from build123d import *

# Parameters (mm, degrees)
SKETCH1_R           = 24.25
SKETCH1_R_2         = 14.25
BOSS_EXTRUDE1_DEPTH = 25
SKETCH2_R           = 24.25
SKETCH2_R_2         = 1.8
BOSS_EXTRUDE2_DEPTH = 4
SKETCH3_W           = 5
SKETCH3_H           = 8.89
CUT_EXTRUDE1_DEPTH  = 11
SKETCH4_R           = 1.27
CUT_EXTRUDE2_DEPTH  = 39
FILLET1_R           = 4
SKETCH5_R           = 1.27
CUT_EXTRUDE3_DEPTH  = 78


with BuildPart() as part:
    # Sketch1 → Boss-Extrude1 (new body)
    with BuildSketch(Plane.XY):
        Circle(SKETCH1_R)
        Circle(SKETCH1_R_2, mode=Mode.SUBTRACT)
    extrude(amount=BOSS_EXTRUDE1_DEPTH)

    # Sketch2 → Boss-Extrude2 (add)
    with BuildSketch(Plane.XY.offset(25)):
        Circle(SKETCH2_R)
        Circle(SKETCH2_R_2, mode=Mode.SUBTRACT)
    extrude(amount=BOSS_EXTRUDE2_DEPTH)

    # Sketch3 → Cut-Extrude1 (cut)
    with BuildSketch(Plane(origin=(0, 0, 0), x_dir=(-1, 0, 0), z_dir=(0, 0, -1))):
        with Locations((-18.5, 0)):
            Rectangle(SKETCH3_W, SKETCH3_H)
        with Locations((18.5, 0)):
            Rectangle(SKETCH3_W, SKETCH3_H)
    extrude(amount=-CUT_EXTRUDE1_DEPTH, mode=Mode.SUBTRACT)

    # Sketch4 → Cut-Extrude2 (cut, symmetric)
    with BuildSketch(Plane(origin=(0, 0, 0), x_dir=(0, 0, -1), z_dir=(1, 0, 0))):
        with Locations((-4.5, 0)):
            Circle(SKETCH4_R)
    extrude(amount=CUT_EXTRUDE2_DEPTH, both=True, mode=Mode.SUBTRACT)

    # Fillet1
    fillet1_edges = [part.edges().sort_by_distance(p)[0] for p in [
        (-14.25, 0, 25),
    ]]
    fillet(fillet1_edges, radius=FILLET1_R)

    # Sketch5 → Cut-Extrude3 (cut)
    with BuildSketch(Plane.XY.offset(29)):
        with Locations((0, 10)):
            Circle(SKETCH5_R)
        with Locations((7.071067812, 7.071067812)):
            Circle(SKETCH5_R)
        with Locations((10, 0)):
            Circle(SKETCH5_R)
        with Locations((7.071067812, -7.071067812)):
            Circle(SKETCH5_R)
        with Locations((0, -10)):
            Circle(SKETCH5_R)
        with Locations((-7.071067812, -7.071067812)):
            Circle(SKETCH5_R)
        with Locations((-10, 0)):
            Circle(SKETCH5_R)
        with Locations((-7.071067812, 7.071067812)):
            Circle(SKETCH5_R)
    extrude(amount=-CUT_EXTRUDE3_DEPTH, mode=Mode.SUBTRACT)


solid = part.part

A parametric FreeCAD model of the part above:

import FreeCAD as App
import Part
import Sketcher


def edges_at(feature, points):
    """Names of the edges that pass closest to the given points."""
    edges = feature.Shape.Edges
    near = lambda p: min(range(len(edges)), key=lambda i: edges[i].distToShape(Part.Vertex(*p))[0])
    return sorted({f"Edge{near(p) + 1}" for p in points})

doc = App.newDocument("Part")
body = doc.addObject("PartDesign::Body", "Body")

sketch1 = body.newObject("Sketcher::SketchObject", "Sketch")
sketch1.AttachmentSupport = (doc.getObject("XY_Plane"), [""])
sketch1.MapMode = "FlatFace"
sketch1.addGeometry([
    Part.Circle(App.Vector(0, 0, 0), App.Vector(0, 0, 1), 24),
    Part.Circle(App.Vector(0, 0, 0), App.Vector(0, 0, 1), 14),
], False)
sketch1.addConstraint([
    Sketcher.Constraint("Coincident", 0, 3, -1, 1),
    Sketcher.Constraint("Coincident", 1, 3, -1, 1),
    Sketcher.Constraint("Diameter", 0, 48.5),
    Sketcher.Constraint("Diameter", 1, 28.5),
])
pad1 = body.newObject("PartDesign::Pad", "Pad")
pad1.Profile = sketch1
pad1.Length = 25

sketch2 = body.newObject("Sketcher::SketchObject", "Sketch001")
sketch2.AttachmentSupport = (doc.getObject("XY_Plane"), [""])
sketch2.MapMode = "FlatFace"
sketch2.AttachmentOffset = App.Placement(App.Vector(0, 0, 25), App.Rotation())
sketch2.addGeometry([
    Part.Circle(App.Vector(0, 0, 0), App.Vector(0, 0, 1), 24.2),
    Part.Circle(App.Vector(0, 0, 0), App.Vector(0, 0, 1), 1.8),
], False)
sketch2.addConstraint([
    Sketcher.Constraint("Coincident", 0, 3, -1, 1),
    Sketcher.Constraint("Coincident", 1, 3, -1, 1),
    Sketcher.Constraint("Diameter", 0, 48.5),
    Sketcher.Constraint("Diameter", 1, 3.6),
])
pad2 = body.newObject("PartDesign::Pad", "Pad001")
pad2.Profile = sketch2
pad2.Length = 4

sketch3 = body.newObject("Sketcher::SketchObject", "Sketch002")
sketch3.AttachmentSupport = (doc.getObject("XY_Plane"), [""])
sketch3.MapMode = "FlatFace"
sketch3.addGeometry([
    Part.LineSegment(App.Vector(21, 4, 0), App.Vector(21, -4, 0)),
    Part.LineSegment(App.Vector(21, -4, 0), App.Vector(16, -4, 0)),
    Part.LineSegment(App.Vector(16, -4, 0), App.Vector(16, 4, 0)),
    Part.LineSegment(App.Vector(16, 4, 0), App.Vector(21, 4, 0)),
    Part.LineSegment(App.Vector(-16, 4, 0), App.Vector(-16, -4, 0)),
    Part.LineSegment(App.Vector(-16, -4, 0), App.Vector(-21, -4, 0)),
    Part.LineSegment(App.Vector(-21, -4, 0), App.Vector(-21, 4, 0)),
    Part.LineSegment(App.Vector(-21, 4, 0), App.Vector(-16, 4, 0)),
], False)
sketch3.addConstraint([
    Sketcher.Constraint("Coincident", 0, 2, 1, 1),
    Sketcher.Constraint("Coincident", 1, 2, 2, 1),
    Sketcher.Constraint("Coincident", 2, 2, 3, 1),
    Sketcher.Constraint("Coincident", 3, 2, 0, 1),
    Sketcher.Constraint("Coincident", 4, 2, 5, 1),
    Sketcher.Constraint("Coincident", 5, 2, 6, 1),
    Sketcher.Constraint("Coincident", 6, 2, 7, 1),
    Sketcher.Constraint("Coincident", 7, 2, 4, 1),
    Sketcher.Constraint("Vertical", 0),
    Sketcher.Constraint("Horizontal", 1),
    Sketcher.Constraint("Vertical", 2),
    Sketcher.Constraint("Horizontal", 3),
    Sketcher.Constraint("Vertical", 4),
    Sketcher.Constraint("Horizontal", 5),
    Sketcher.Constraint("Vertical", 6),
    Sketcher.Constraint("Horizontal", 7),
    Sketcher.Constraint("Symmetric", 2, 2, 4, 2, -1, 1),
    Sketcher.Constraint("Symmetric", 0, 2, 6, 2, -1, 1),
    Sketcher.Constraint("Horizontal", 1, 2, 4, 2),
    Sketcher.Constraint("DistanceX", 1, 2, 1, 1, 5.0),
    Sketcher.Constraint("DistanceX", -1, 1, 0, 2, 21.0),
    Sketcher.Constraint("DistanceY", 0, 2, 0, 1, 8.89),
])
pocket1 = body.newObject("PartDesign::Pocket", "Pocket")
pocket1.Profile = sketch3
pocket1.Length = 11
pocket1.Reversed = True

sketch4 = body.newObject("Sketcher::SketchObject", "Sketch003")
sketch4.AttachmentSupport = (doc.getObject("YZ_Plane"), [""])
sketch4.MapMode = "FlatFace"
sketch4.addGeometry(Part.Circle(App.Vector(0, 4.5, 0), App.Vector(0, 0, 1), 1.3), False)
sketch4.addConstraint([
    Sketcher.Constraint("PointOnObject", 0, 3, -2),
    Sketcher.Constraint("Diameter", 0, 2.54),
    Sketcher.Constraint("DistanceY", -1, 1, 0, 3, 4.5),
])
pocket2 = body.newObject("PartDesign::Pocket", "Pocket001")
pocket2.Profile = sketch4
pocket2.Length = 78
pocket2.Midplane = True
doc.recompute()

fillet = body.newObject("PartDesign::Fillet", "Fillet")
fillet.Base = (pocket2, edges_at(pocket2, [(-14.25, 0, 25)]))
fillet.Radius = 4

sketch5 = body.newObject("Sketcher::SketchObject", "Sketch004")
sketch5.AttachmentSupport = (doc.getObject("XY_Plane"), [""])
sketch5.MapMode = "FlatFace"
sketch5.AttachmentOffset = App.Placement(App.Vector(0, 0, 29), App.Rotation())
sketch5.addGeometry([
    Part.Circle(App.Vector(0, 10, 0), App.Vector(0, 0, 1), 1.3),
    Part.Circle(App.Vector(7.1, 7.1, 0), App.Vector(0, 0, 1), 1.3),
    Part.Circle(App.Vector(10, 0, 0), App.Vector(0, 0, 1), 1.3),
    Part.Circle(App.Vector(7.1, -7.1, 0), App.Vector(0, 0, 1), 1.3),
    Part.Circle(App.Vector(0, -10, 0), App.Vector(0, 0, 1), 1.3),
    Part.Circle(App.Vector(-7.1, -7.1, 0), App.Vector(0, 0, 1), 1.3),
    Part.Circle(App.Vector(-10, 0, 0), App.Vector(0, 0, 1), 1.3),
    Part.Circle(App.Vector(-7.1, 7.1, 0), App.Vector(0, 0, 1), 1.3),
], False)
sketch5.addConstraint([
    Sketcher.Constraint("Equal", 0, 1),
    Sketcher.Constraint("Equal", 1, 2),
    Sketcher.Constraint("Equal", 2, 3),
    Sketcher.Constraint("Equal", 3, 4),
    Sketcher.Constraint("Equal", 4, 5),
    Sketcher.Constraint("Equal", 5, 6),
    Sketcher.Constraint("Equal", 6, 7),
    Sketcher.Constraint("Symmetric", 0, 3, 4, 3, -1, 1),
    Sketcher.Constraint("Symmetric", 1, 3, 5, 3, -1, 1),
    Sketcher.Constraint("Symmetric", 2, 3, 6, 3, -1, 1),
    Sketcher.Constraint("Symmetric", 3, 3, 7, 3, -1, 1),
    Sketcher.Constraint("Symmetric", 3, 3, 5, 3, -2),
    Sketcher.Constraint("PointOnObject", 0, 3, -2),
    Sketcher.Constraint("PointOnObject", 2, 3, -1),
    Sketcher.Constraint("Diameter", 0, 2.54),
    Sketcher.Constraint("DistanceY", -1, 1, 0, 3, 10.0),
    Sketcher.Constraint("DistanceX", -1, 1, 2, 3, 10.0),
    Sketcher.Constraint("DistanceX", -1, 1, 1, 3, 7.071068),
    Sketcher.Constraint("DistanceY", -1, 1, 1, 3, 7.071068),
])
pocket3 = body.newObject("PartDesign::Pocket", "Pocket002")
pocket3.Profile = sketch5
pocket3.Length = 78

doc.recompute()
